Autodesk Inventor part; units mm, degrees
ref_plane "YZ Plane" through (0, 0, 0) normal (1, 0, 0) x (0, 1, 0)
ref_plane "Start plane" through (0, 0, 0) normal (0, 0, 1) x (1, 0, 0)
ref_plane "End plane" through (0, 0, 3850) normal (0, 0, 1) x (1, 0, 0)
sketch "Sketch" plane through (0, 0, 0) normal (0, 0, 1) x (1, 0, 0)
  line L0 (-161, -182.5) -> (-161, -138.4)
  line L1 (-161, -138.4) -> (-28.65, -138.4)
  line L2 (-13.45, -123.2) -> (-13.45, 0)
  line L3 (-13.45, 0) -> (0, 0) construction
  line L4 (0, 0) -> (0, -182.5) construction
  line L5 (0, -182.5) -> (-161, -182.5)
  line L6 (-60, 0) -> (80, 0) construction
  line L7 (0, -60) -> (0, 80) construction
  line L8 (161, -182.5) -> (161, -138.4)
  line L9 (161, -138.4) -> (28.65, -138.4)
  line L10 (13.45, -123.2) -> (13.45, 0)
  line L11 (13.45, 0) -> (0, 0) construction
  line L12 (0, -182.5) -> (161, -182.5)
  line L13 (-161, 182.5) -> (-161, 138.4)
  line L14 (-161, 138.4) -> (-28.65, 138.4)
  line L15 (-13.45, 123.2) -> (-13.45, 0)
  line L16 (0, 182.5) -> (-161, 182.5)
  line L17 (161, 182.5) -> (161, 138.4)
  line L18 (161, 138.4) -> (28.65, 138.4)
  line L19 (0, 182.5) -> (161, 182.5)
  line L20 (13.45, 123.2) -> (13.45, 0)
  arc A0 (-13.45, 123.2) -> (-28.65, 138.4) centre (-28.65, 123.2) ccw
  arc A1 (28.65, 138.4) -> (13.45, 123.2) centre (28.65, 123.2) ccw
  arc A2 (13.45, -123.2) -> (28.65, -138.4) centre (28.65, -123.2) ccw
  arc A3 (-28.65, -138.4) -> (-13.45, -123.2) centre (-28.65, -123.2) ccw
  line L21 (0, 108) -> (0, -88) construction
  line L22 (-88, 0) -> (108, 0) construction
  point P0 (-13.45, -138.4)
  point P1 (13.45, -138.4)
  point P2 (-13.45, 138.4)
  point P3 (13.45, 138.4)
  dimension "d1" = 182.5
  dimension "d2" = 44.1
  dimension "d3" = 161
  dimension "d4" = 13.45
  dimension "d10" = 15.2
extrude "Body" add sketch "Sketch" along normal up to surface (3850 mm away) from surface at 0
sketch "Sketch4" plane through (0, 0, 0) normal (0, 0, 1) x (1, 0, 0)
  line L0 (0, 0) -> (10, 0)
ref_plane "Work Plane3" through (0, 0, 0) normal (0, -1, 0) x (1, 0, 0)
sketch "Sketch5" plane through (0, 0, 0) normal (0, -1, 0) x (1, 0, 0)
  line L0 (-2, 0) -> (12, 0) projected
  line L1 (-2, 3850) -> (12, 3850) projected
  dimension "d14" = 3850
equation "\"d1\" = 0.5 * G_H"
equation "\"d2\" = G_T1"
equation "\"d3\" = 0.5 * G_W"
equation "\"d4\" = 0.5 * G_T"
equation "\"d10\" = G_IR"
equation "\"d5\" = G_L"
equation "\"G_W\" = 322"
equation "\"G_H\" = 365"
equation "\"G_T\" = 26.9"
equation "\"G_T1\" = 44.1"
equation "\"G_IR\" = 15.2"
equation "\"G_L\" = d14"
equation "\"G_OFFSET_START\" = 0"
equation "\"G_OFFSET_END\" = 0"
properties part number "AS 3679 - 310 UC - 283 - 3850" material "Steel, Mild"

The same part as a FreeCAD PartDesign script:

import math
import FreeCAD as App
import Part
import Sketcher
Q = App.Units.Quantity

doc = App.newDocument("Part")
body = doc.addObject("PartDesign::Body", "Body")

sketch1 = body.newObject("Sketcher::SketchObject", "Sketch")
sketch1.AttachmentSupport = (doc.getObject("XY_Plane"), [""])
sketch1.MapMode = "FlatFace"
sketch1.addGeometry(Part.LineSegment(App.Vector(-161, -138, 0), App.Vector(-161, -182, 0)), False)
sketch1.addGeometry(Part.LineSegment(App.Vector(-161, -182, 0), App.Vector(161, -182, 0)), False)
sketch1.addGeometry(Part.LineSegment(App.Vector(161, -182, 0), App.Vector(161, -138, 0)), False)
sketch1.addGeometry(Part.LineSegment(App.Vector(161, -138, 0), App.Vector(29, -138, 0)), False)
sketch1.addGeometry(Part.ArcOfCircle(Part.Circle(App.Vector(29, -123, 0), App.Vector(0, 0, 1), 15), math.radians(180), math.radians(270)), False)
sketch1.addGeometry(Part.LineSegment(App.Vector(13, -123, 0), App.Vector(13, 123, 0)), False)
sketch1.addGeometry(Part.ArcOfCircle(Part.Circle(App.Vector(29, 123, 0), App.Vector(0, 0, 1), 15), math.radians(90), math.radians(180)), False)
sketch1.addGeometry(Part.LineSegment(App.Vector(29, 138, 0), App.Vector(161, 138, 0)), False)
sketch1.addGeometry(Part.LineSegment(App.Vector(161, 138, 0), App.Vector(161, 182, 0)), False)
sketch1.addGeometry(Part.LineSegment(App.Vector(161, 182, 0), App.Vector(-161, 182, 0)), False)
sketch1.addGeometry(Part.LineSegment(App.Vector(-161, 182, 0), App.Vector(-161, 138, 0)), False)
sketch1.addGeometry(Part.LineSegment(App.Vector(-161, 138, 0), App.Vector(-29, 138, 0)), False)
sketch1.addGeometry(Part.ArcOfCircle(Part.Circle(App.Vector(-29, 123, 0), App.Vector(0, 0, 1), 15), math.radians(0), math.radians(90)), False)
sketch1.addGeometry(Part.LineSegment(App.Vector(-13, 123, 0), App.Vector(-13, -123, 0)), False)
sketch1.addGeometry(Part.ArcOfCircle(Part.Circle(App.Vector(-29, -123, 0), App.Vector(0, 0, 1), 15), math.radians(-90), math.radians(0)), False)
sketch1.addGeometry(Part.LineSegment(App.Vector(-29, -138, 0), App.Vector(-161, -138, 0)), False)
sketch1.addConstraint(Sketcher.Constraint("Coincident", 0, 2, 1, 1))
sketch1.addConstraint(Sketcher.Constraint("Coincident", 1, 2, 2, 1))
sketch1.addConstraint(Sketcher.Constraint("Coincident", 2, 2, 3, 1))
sketch1.addConstraint(Sketcher.Constraint("Tangent", 3, 2, 4, 2))
sketch1.addConstraint(Sketcher.Constraint("Tangent", 4, 1, 5, 1))
sketch1.addConstraint(Sketcher.Constraint("Tangent", 5, 2, 6, 2))
sketch1.addConstraint(Sketcher.Constraint("Tangent", 6, 1, 7, 1))
sketch1.addConstraint(Sketcher.Constraint("Coincident", 7, 2, 8, 1))
sketch1.addConstraint(Sketcher.Constraint("Coincident", 8, 2, 9, 1))
sketch1.addConstraint(Sketcher.Constraint("Coincident", 9, 2, 10, 1))
sketch1.addConstraint(Sketcher.Constraint("Coincident", 10, 2, 11, 1))
sketch1.addConstraint(Sketcher.Constraint("Tangent", 11, 2, 12, 2))
sketch1.addConstraint(Sketcher.Constraint("Tangent", 12, 1, 13, 1))
sketch1.addConstraint(Sketcher.Constraint("Tangent", 13, 2, 14, 2))
sketch1.addConstraint(Sketcher.Constraint("Tangent", 14, 1, 15, 1))
sketch1.addConstraint(Sketcher.Constraint("Coincident", 15, 2, 0, 1))
sketch1.addConstraint(Sketcher.Constraint("Vertical", 0))
sketch1.addConstraint(Sketcher.Constraint("Horizontal", 1))
sketch1.addConstraint(Sketcher.Constraint("Vertical", 2))
sketch1.addConstraint(Sketcher.Constraint("Horizontal", 3))
sketch1.addConstraint(Sketcher.Constraint("Vertical", 5))
sketch1.addConstraint(Sketcher.Constraint("Horizontal", 7))
sketch1.addConstraint(Sketcher.Constraint("Vertical", 8))
sketch1.addConstraint(Sketcher.Constraint("Horizontal", 9))
sketch1.addConstraint(Sketcher.Constraint("Vertical", 10))
sketch1.addConstraint(Sketcher.Constraint("Horizontal", 11))
sketch1.addConstraint(Sketcher.Constraint("Vertical", 13))
sketch1.addConstraint(Sketcher.Constraint("Horizontal", 15))
sketch1.addConstraint(Sketcher.Constraint("Equal", 4, 6))
sketch1.addConstraint(Sketcher.Constraint("Equal", 6, 12))
sketch1.addConstraint(Sketcher.Constraint("Equal", 12, 14))
sketch1.addConstraint(Sketcher.Constraint("Symmetric", 4, 3, 12, 3, -1, 1))
sketch1.addConstraint(Sketcher.Constraint("Symmetric", 0, 2, 8, 2, -1, 1))
sketch1.addConstraint(Sketcher.Constraint("Symmetric", 7, 2, 10, 2, -2))
sketch1.addConstraint(Sketcher.Constraint("Symmetric", 2, 2, 15, 2, -2))
sketch1.addConstraint(Sketcher.Constraint("Radius", 4, Q("15.2 mm")))
sketch1.addConstraint(Sketcher.Constraint("DistanceY", 0, 2, 0, 1, Q("44.1 mm")))
sketch1.addConstraint(Sketcher.Constraint("DistanceX", 0, 2, -1, 1, Q("161 mm")))
sketch1.addConstraint(Sketcher.Constraint("DistanceY", 0, 2, -1, 1, Q("182.5 mm")))
sketch1.addConstraint(Sketcher.Constraint("DistanceX", -1, 1, 4, 1, Q("13.45 mm")))
pad1 = body.newObject("PartDesign::Pad", "Pad")
pad1.Profile = sketch1
pad1.Length = 3850

doc.recompute()
